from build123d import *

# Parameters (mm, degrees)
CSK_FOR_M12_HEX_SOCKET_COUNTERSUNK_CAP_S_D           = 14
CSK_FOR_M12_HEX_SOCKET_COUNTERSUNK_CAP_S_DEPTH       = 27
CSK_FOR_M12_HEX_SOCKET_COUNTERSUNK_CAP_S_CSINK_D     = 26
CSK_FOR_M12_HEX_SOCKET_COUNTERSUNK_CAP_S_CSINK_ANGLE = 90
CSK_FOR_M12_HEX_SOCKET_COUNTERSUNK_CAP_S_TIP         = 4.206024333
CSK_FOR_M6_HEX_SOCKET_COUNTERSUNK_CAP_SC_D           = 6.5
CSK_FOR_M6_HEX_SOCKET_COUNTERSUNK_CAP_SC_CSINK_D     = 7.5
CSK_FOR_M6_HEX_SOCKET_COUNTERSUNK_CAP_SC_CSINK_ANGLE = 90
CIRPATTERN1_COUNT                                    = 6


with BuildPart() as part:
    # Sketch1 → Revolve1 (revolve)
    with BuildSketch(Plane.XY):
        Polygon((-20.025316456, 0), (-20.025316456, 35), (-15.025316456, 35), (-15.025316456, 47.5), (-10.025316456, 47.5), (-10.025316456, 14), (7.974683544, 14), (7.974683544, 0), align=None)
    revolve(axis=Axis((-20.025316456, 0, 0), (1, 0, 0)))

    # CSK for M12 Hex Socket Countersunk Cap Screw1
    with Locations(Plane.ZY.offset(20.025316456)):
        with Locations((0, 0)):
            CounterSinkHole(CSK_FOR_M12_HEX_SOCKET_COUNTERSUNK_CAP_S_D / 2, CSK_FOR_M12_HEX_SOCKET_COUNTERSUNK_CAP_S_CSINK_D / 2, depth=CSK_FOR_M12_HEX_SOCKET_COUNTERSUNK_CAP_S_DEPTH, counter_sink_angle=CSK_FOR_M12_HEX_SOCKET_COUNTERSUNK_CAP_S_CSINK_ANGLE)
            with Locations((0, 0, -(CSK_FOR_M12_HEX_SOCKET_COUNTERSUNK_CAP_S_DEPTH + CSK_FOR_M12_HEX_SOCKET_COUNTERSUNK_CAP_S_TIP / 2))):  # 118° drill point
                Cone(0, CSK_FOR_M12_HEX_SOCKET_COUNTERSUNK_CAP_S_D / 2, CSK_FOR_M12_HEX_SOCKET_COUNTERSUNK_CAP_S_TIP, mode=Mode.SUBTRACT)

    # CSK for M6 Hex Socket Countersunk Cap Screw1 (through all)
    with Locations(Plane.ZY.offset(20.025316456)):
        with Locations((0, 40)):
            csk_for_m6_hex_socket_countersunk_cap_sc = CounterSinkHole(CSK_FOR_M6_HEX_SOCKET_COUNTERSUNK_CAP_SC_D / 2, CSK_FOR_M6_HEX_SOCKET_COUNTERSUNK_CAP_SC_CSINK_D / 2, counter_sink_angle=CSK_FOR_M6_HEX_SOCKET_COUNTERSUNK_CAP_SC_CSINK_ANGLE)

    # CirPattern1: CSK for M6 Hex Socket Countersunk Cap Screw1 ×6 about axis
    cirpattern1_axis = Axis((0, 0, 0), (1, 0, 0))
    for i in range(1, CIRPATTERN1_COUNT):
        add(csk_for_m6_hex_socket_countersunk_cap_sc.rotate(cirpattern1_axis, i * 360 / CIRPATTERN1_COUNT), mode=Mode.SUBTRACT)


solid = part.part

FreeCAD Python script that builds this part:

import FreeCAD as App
import Part
import Sketcher

V = App.Vector
Q = App.Units.Quantity

doc = App.newDocument("Part")
body = doc.addObject("PartDesign::Body", "Body")

# Sketch on XY plane
sketch1 = body.newObject("Sketcher::SketchObject", "Sketch")
sketch1.AttachmentSupport = (doc.getObject("XY_Plane"), [""])
sketch1.MapMode = "FlatFace"
sketch1.addGeometry(Part.LineSegment(V(-20, 35, 0), V(-20, 0, 0)), False)
sketch1.addGeometry(Part.LineSegment(V(-20, 0, 0), V(8, 0, 0)), False)
sketch1.addGeometry(Part.LineSegment(V(8, 0, 0), V(8, 14, 0)), False)
sketch1.addGeometry(Part.LineSegment(V(8, 14, 0), V(-10, 14, 0)), False)
sketch1.addGeometry(Part.LineSegment(V(-10, 14, 0), V(-10, 47.5, 0)), False)
sketch1.addGeometry(Part.LineSegment(V(-10, 47.5, 0), V(-15, 47.5, 0)), False)
sketch1.addGeometry(Part.LineSegment(V(-15, 47.5, 0), V(-15, 35, 0)), False)
sketch1.addGeometry(Part.LineSegment(V(-15, 35, 0), V(-20, 35, 0)), False)
sketch1.addConstraint(Sketcher.Constraint("Coincident", 0, 2, 1, 1))
sketch1.addConstraint(Sketcher.Constraint("Coincident", 1, 2, 2, 1))
sketch1.addConstraint(Sketcher.Constraint("Coincident", 2, 2, 3, 1))
sketch1.addConstraint(Sketcher.Constraint("Coincident", 3, 2, 4, 1))
sketch1.addConstraint(Sketcher.Constraint("Coincident", 4, 2, 5, 1))
sketch1.addConstraint(Sketcher.Constraint("Coincident", 5, 2, 6, 1))
sketch1.addConstraint(Sketcher.Constraint("Coincident", 6, 2, 7, 1))
sketch1.addConstraint(Sketcher.Constraint("Coincident", 7, 2, 0, 1))
sketch1.addConstraint(Sketcher.Constraint("Vertical", 0))
sketch1.addConstraint(Sketcher.Constraint("Horizontal", 1))
sketch1.addConstraint(Sketcher.Constraint("Vertical", 2))
sketch1.addConstraint(Sketcher.Constraint("Horizontal", 3))
sketch1.addConstraint(Sketcher.Constraint("Vertical", 4))
sketch1.addConstraint(Sketcher.Constraint("Horizontal", 5))
sketch1.addConstraint(Sketcher.Constraint("Vertical", 6))
sketch1.addConstraint(Sketcher.Constraint("Horizontal", 7))
sketch1.addConstraint(Sketcher.Constraint("PointOnObject", 0, 2, -1))
sketch1.addConstraint(Sketcher.Constraint("Equal", 5, 7))
sketch1.addConstraint(Sketcher.Constraint("DistanceX", 1, 1, 1, 2, Q("28 mm")))
sketch1.addConstraint(Sketcher.Constraint("DistanceX", 3, 2, 3, 1, Q("18 mm")))
sketch1.addConstraint(Sketcher.Constraint("DistanceY", 0, 2, 0, 1, Q("35 mm")))
sketch1.addConstraint(Sketcher.Constraint("DistanceY", 2, 1, 2, 2, Q("14 mm")))
sketch1.addConstraint(Sketcher.Constraint("DistanceY", 4, 1, 4, 2, Q("33.5 mm")))
sketch1.addConstraint(Sketcher.Constraint("DistanceX", 0, 2, -1, 1, Q("20.025316 mm")))
revolution = body.newObject("PartDesign::Revolution", "Revolution")
revolution.Profile = sketch1
revolution.ReferenceAxis = (sketch1, ["H_Axis"])
revolution.Angle = 360

# Sketch on YZ plane
sketch2 = body.newObject("Sketcher::SketchObject", "Sketch001")
sketch2.AttachmentSupport = (doc.getObject("YZ_Plane"), [""])
sketch2.MapMode = "FlatFace"
sketch2.AttachmentOffset = App.Placement(V(0, 0, -20.025316), App.Rotation())
sketch2.addGeometry(Part.Circle(V(0, 0, 0), V(0, 0, 1), 7), False)
sketch2.addConstraint(Sketcher.Constraint("Coincident", 0, 3, -1, 1))
sketch2.addConstraint(Sketcher.Constraint("Diameter", 0, Q("14 mm")))
doc.recompute()
hole = body.newObject("PartDesign::Hole", "Hole")
hole.Profile = sketch2
hole.ThreadType = "None"
hole.Diameter = 14
hole.DepthType = "Dimension"
hole.Depth = 27
hole.DrillPoint = "Angled"
hole.DrillPointAngle = 118
hole.HoleCutType = "Countersink"
hole.HoleCutDiameter = 26
hole.HoleCutCountersinkAngle = 90
hole.Reversed = True

# Sketch on YZ plane
sketch3 = body.newObject("Sketcher::SketchObject", "Sketch002")
sketch3.AttachmentSupport = (doc.getObject("YZ_Plane"), [""])
sketch3.MapMode = "FlatFace"
sketch3.AttachmentOffset = App.Placement(V(0, 0, -20.025316), App.Rotation())
sketch3.addGeometry(Part.Circle(V(40, 0, 0), V(0, 0, 1), 3.2), False)
sketch3.addConstraint(Sketcher.Constraint("PointOnObject", 0, 3, -1))
sketch3.addConstraint(Sketcher.Constraint("Diameter", 0, Q("6.5 mm")))
sketch3.addConstraint(Sketcher.Constraint("DistanceX", -1, 1, 0, 3, Q("40 mm")))
doc.recompute()
hole2 = body.newObject("PartDesign::Hole", "Hole001")
hole2.Profile = sketch3
hole2.ThreadType = "None"
hole2.Diameter = 6.5
hole2.DepthType = "ThroughAll"
hole2.HoleCutType = "Countersink"
hole2.HoleCutDiameter = 7.5
hole2.HoleCutCountersinkAngle = 90
hole2.Reversed = True
doc.recompute()

polarpattern = body.newObject("PartDesign::PolarPattern", "PolarPattern")
polarpattern.Originals = [hole2]
polarpattern.Axis = (doc.getObject("X_Axis"), [""])
polarpattern.Angle = 360
polarpattern.Occurrences = 6
body.Tip = polarpattern

doc.recompute()
